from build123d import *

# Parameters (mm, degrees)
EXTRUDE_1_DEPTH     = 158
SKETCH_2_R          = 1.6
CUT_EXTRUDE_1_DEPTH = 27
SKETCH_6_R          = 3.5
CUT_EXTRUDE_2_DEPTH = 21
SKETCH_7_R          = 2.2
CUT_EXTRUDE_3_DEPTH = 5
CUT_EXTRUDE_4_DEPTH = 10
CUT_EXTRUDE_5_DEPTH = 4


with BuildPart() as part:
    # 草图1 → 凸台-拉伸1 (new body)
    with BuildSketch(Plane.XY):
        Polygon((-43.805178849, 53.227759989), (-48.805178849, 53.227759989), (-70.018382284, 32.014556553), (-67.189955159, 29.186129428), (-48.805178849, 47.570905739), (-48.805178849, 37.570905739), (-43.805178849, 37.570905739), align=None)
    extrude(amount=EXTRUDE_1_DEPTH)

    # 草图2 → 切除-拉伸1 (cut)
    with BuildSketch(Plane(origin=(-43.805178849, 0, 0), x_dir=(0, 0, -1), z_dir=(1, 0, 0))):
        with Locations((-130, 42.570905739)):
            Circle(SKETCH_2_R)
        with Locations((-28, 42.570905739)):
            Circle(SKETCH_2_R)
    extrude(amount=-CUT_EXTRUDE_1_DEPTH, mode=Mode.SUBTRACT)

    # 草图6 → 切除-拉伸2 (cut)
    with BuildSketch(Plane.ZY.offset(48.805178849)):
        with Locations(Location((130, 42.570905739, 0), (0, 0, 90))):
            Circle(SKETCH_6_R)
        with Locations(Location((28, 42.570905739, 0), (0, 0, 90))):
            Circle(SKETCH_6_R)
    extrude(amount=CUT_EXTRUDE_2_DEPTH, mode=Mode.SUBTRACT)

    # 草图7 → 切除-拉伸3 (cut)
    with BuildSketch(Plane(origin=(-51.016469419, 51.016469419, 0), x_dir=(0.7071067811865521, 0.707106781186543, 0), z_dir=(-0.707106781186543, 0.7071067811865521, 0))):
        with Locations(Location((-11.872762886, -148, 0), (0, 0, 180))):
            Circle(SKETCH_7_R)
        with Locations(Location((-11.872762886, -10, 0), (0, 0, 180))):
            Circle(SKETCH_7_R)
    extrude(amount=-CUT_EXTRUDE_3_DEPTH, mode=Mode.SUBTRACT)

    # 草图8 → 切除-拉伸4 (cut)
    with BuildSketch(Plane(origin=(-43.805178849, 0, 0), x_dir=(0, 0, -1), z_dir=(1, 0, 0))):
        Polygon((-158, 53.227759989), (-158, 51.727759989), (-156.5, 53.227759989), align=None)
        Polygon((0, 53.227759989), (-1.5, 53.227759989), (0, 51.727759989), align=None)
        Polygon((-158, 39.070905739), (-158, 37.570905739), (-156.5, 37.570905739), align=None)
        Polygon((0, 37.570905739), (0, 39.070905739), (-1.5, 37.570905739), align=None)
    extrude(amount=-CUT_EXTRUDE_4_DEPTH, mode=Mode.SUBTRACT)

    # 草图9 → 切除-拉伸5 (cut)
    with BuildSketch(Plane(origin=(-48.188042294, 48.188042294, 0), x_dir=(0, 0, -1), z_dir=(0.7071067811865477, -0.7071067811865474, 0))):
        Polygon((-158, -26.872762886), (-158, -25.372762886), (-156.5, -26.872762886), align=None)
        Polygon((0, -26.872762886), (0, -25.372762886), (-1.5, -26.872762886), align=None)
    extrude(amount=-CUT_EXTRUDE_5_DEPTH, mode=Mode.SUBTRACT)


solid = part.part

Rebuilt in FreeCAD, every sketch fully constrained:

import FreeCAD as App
import Part
import Sketcher

V = App.Vector
Q = App.Units.Quantity

doc = App.newDocument("Part")
body = doc.addObject("PartDesign::Body", "Body")

# Sketch on XY plane
sketch1 = body.newObject("Sketcher::SketchObject", "Sketch")
sketch1.AttachmentSupport = (doc.getObject("XY_Plane"), [""])
sketch1.MapMode = "FlatFace"
sketch1.addGeometry([
    Part.LineSegment(V(-43.8, 53.2, 0), V(-48.8, 53.2, 0)),  # 0
    Part.LineSegment(V(-48.8, 53.2, 0), V(-70, 32, 0)),  # 1
    Part.LineSegment(V(-70, 32, 0), V(-67.2, 29.2, 0)),  # 2
    Part.LineSegment(V(-67.2, 29.2, 0), V(-48.8, 47.6, 0)),  # 3
    Part.LineSegment(V(-48.8, 47.6, 0), V(-48.8, 37.6, 0)),  # 4
    Part.LineSegment(V(-48.8, 37.6, 0), V(-43.8, 37.6, 0)),  # 5
    Part.LineSegment(V(-43.8, 37.6, 0), V(-43.8, 53.2, 0)),  # 6
], False)
sketch1.addConstraint([
    Sketcher.Constraint("Coincident", 0, 2, 1, 1),
    Sketcher.Constraint("Coincident", 1, 2, 2, 1),
    Sketcher.Constraint("Coincident", 2, 2, 3, 1),
    Sketcher.Constraint("Coincident", 3, 2, 4, 1),
    Sketcher.Constraint("Coincident", 4, 2, 5, 1),
    Sketcher.Constraint("Coincident", 5, 2, 6, 1),
    Sketcher.Constraint("Coincident", 6, 2, 0, 1),
    Sketcher.Constraint("Horizontal", 0),
    Sketcher.Constraint("Vertical", 4),
    Sketcher.Constraint("Horizontal", 5),
    Sketcher.Constraint("Vertical", 6),
    Sketcher.Constraint("Perpendicular", 1, 2),
    Sketcher.Constraint("Perpendicular", 2, 3),
    Sketcher.Constraint("Vertical", 0, 2, 3, 2),
    Sketcher.Constraint("DistanceX", 0, 2, 0, 1, Q("5 mm")),
    Sketcher.Constraint("DistanceY", 4, 2, 4, 1, Q("10 mm")),
    Sketcher.Constraint("Angle", 1, Q("-135 deg")),
    Sketcher.Constraint("Distance", 1, Q("30 mm")),
    Sketcher.Constraint("Distance", 2, Q("4 mm")),
    Sketcher.Constraint("DistanceX", 0, 2, -1, 1, Q("48.805179 mm")),
    Sketcher.Constraint("DistanceY", -1, 1, 0, 2, Q("53.22776 mm")),
])
pad1 = body.newObject("PartDesign::Pad", "Pad")
pad1.Profile = sketch1
pad1.Length = 158

# Sketch on YZ plane
sketch2 = body.newObject("Sketcher::SketchObject", "Sketch001")
sketch2.AttachmentSupport = (doc.getObject("YZ_Plane"), [""])
sketch2.MapMode = "FlatFace"
sketch2.AttachmentOffset = App.Placement(V(0, 0, -43.805179), App.Rotation())
sketch2.addGeometry([
    Part.Circle(V(42.6, 130, 0), V(0, 0, 1), 1.6),
    Part.Circle(V(42.6, 28, 0), V(0, 0, 1), 1.6),
], False)
sketch2.addConstraint([
    Sketcher.Constraint("Equal", 0, 1),
    Sketcher.Constraint("Vertical", 0, 3, 1, 3),
    Sketcher.Constraint("Diameter", 0, Q("3.2 mm")),
    Sketcher.Constraint("DistanceY", -1, 1, 0, 3, Q("130 mm")),
    Sketcher.Constraint("DistanceY", -1, 1, 1, 3, Q("28 mm")),
    Sketcher.Constraint("DistanceX", -1, 1, 0, 3, Q("42.570906 mm")),
])
pocket1 = body.newObject("PartDesign::Pocket", "Pocket")
pocket1.Profile = sketch2
pocket1.Length = 27

# Sketch on YZ plane
sketch3 = body.newObject("Sketcher::SketchObject", "Sketch002")
sketch3.AttachmentSupport = (doc.getObject("YZ_Plane"), [""])
sketch3.MapMode = "FlatFace"
sketch3.AttachmentOffset = App.Placement(V(0, 0, -48.805179), App.Rotation())
sketch3.addGeometry([
    Part.Circle(V(42.6, 130, 0), V(0, 0, 1), 3.5),
    Part.Circle(V(42.6, 28, 0), V(0, 0, 1), 3.5),
], False)
sketch3.addConstraint([
    Sketcher.Constraint("Equal", 0, 1),
    Sketcher.Constraint("Vertical", 0, 3, 1, 3),
    Sketcher.Constraint("Diameter", 0, Q("7 mm")),
    Sketcher.Constraint("DistanceY", -1, 1, 0, 3, Q("130 mm")),
    Sketcher.Constraint("DistanceY", -1, 1, 1, 3, Q("28 mm")),
    Sketcher.Constraint("DistanceX", -1, 1, 0, 3, Q("42.570906 mm")),
])
pocket2 = body.newObject("PartDesign::Pocket", "Pocket001")
pocket2.Profile = sketch3
pocket2.Length = 21

# Sketch on an angled plane
sketch4 = body.newObject("Sketcher::SketchObject", "Sketch003")
sketch4.Placement = App.Placement(V(-51.016469, 51.016469, 0), App.Rotation(V(0.707106781, 0.707106781, 0), V(0, 0, -0.999999999), V(-0.707106781, 0.707106781, 0), "ZXY"))
sketch4.addGeometry([
    Part.Circle(V(-11.9, -148, 0), V(0, 0, 1), 2.2),
    Part.Circle(V(-11.9, -10, 0), V(0, 0, 1), 2.2),
], False)
sketch4.addConstraint([
    Sketcher.Constraint("Equal", 0, 1),
    Sketcher.Constraint("Vertical", 0, 3, 1, 3),
    Sketcher.Constraint("Diameter", 0, Q("4.4 mm")),
    Sketcher.Constraint("DistanceY", 0, 3, -1, 1, Q("148 mm")),
    Sketcher.Constraint("DistanceY", 1, 3, -1, 1, Q("10 mm")),
    Sketcher.Constraint("DistanceX", 0, 3, -1, 1, Q("11.872763 mm")),
])
pocket3 = body.newObject("PartDesign::Pocket", "Pocket002")
pocket3.Profile = sketch4
pocket3.Length = 5

# Sketch on YZ plane
sketch5 = body.newObject("Sketcher::SketchObject", "Sketch004")
sketch5.AttachmentSupport = (doc.getObject("YZ_Plane"), [""])
sketch5.MapMode = "FlatFace"
sketch5.AttachmentOffset = App.Placement(V(0, 0, -43.805179), App.Rotation())
sketch5.addGeometry([
    Part.LineSegment(V(53.2, 158, 0), V(51.7, 158, 0)),  # 0
    Part.LineSegment(V(51.7, 158, 0), V(53.2, 156.5, 0)),  # 1
    Part.LineSegment(V(53.2, 156.5, 0), V(53.2, 158, 0)),  # 2
    Part.LineSegment(V(53.2, 0, 0), V(53.2, 1.5, 0)),  # 3
    Part.LineSegment(V(53.2, 1.5, 0), V(51.7, 0, 0)),  # 4
    Part.LineSegment(V(51.7, 0, 0), V(53.2, 0, 0)),  # 5
    Part.LineSegment(V(39.1, 158, 0), V(37.6, 158, 0)),  # 6
    Part.LineSegment(V(37.6, 158, 0), V(37.6, 156.5, 0)),  # 7
    Part.LineSegment(V(37.6, 156.5, 0), V(39.1, 158, 0)),  # 8
    Part.LineSegment(V(37.6, 0, 0), V(39.1, 0, 0)),  # 9
    Part.LineSegment(V(39.1, 0, 0), V(37.6, 1.5, 0)),  # 10
    Part.LineSegment(V(37.6, 1.5, 0), V(37.6, 0, 0)),  # 11
], False)
sketch5.addConstraint([
    Sketcher.Constraint("Coincident", 0, 2, 1, 1),
    Sketcher.Constraint("Coincident", 1, 2, 2, 1),
    Sketcher.Constraint("Coincident", 2, 2, 0, 1),
    Sketcher.Constraint("Coincident", 3, 2, 4, 1),
    Sketcher.Constraint("Coincident", 4, 2, 5, 1),
    Sketcher.Constraint("Coincident", 5, 2, 3, 1),
    Sketcher.Constraint("Coincident", 6, 2, 7, 1),
    Sketcher.Constraint("Coincident", 7, 2, 8, 1),
    Sketcher.Constraint("Coincident", 8, 2, 6, 1),
    Sketcher.Constraint("Coincident", 9, 2, 10, 1),
    Sketcher.Constraint("Coincident", 10, 2, 11, 1),
    Sketcher.Constraint("Coincident", 11, 2, 9, 1),
    Sketcher.Constraint("Horizontal", 0),
    Sketcher.Constraint("Vertical", 2),
    Sketcher.Constraint("Vertical", 3),
    Sketcher.Constraint("Horizontal", 5),
    Sketcher.Constraint("Horizontal", 6),
    Sketcher.Constraint("Vertical", 7),
    Sketcher.Constraint("Horizontal", 9),
    Sketcher.Constraint("Vertical", 11),
    Sketcher.Constraint("PointOnObject", 4, 2, -1),
    Sketcher.Constraint("PointOnObject", 9, 2, -1),
    Sketcher.Constraint("Perpendicular", 1, 4),
    Sketcher.Constraint("Parallel", 4, 8),
    Sketcher.Constraint("Perpendicular", 8, 10),
    Sketcher.Constraint("Horizontal", 2, 2, 6, 2),
    Sketcher.Constraint("Horizontal", 1, 2, 7, 2),
    Sketcher.Constraint("Horizontal", 3, 2, 10, 2),
    Sketcher.Constraint("Vertical", 2, 2, 3, 2),
    Sketcher.Constraint("Vertical", 0, 2, 4, 2),
    Sketcher.Constraint("Vertical", 8, 2, 9, 2),
    Sketcher.Constraint("Vertical", 7, 2, 10, 2),
    Sketcher.Constraint("DistanceX", 0, 2, 0, 1, Q("1.5 mm")),
    Sketcher.Constraint("DistanceY", -1, 1, 0, 2, Q("158 mm")),
    Sketcher.Constraint("DistanceX", -1, 1, 0, 2, Q("51.72776 mm")),
    Sketcher.Constraint("DistanceX", -1, 1, 6, 2, Q("37.570906 mm")),
])
pocket4 = body.newObject("PartDesign::Pocket", "Pocket003")
pocket4.Profile = sketch5
pocket4.Length = 10

# Sketch on an angled plane
sketch6 = body.newObject("Sketcher::SketchObject", "Sketch005")
sketch6.Placement = App.Placement(V(-48.188042, 48.188042, 0), App.Rotation(V(0, 0, -1), V(0.707106781, 0.707106781, 0), V(0.707106781, -0.707106781, 0), "ZXY"))
sketch6.addGeometry([
    Part.LineSegment(V(-158, -25.4, 0), V(-158, -26.9, 0)),  # 0
    Part.LineSegment(V(-158, -26.9, 0), V(-156.5, -26.9, 0)),  # 1
    Part.LineSegment(V(-156.5, -26.9, 0), V(-158, -25.4, 0)),  # 2
    Part.LineSegment(V(0, -26.9, 0), V(0, -25.4, 0)),  # 3
    Part.LineSegment(V(0, -25.4, 0), V(-1.5, -26.9, 0)),  # 4
    Part.LineSegment(V(-1.5, -26.9, 0), V(0, -26.9, 0)),  # 5
], False)
sketch6.addConstraint([
    Sketcher.Constraint("Coincident", 0, 2, 1, 1),
    Sketcher.Constraint("Coincident", 1, 2, 2, 1),
    Sketcher.Constraint("Coincident", 2, 2, 0, 1),
    Sketcher.Constraint("Coincident", 3, 2, 4, 1),
    Sketcher.Constraint("Coincident", 4, 2, 5, 1),
    Sketcher.Constraint("Coincident", 5, 2, 3, 1),
    Sketcher.Constraint("Vertical", 0),
    Sketcher.Constraint("Horizontal", 1),
    Sketcher.Constraint("Vertical", 3),
    Sketcher.Constraint("Horizontal", 5),
    Sketcher.Constraint("PointOnObject", 3, 2, -2),
    Sketcher.Constraint("Perpendicular", 2, 4),
    Sketcher.Constraint("Horizontal", 2, 2, 3, 2),
    Sketcher.Constraint("Horizontal", 1, 2, 4, 2),
    Sketcher.Constraint("Equal", 1, 5),
    Sketcher.Constraint("DistanceX", 1, 1, 1, 2, Q("1.5 mm")),
    Sketcher.Constraint("DistanceX", 0, 2, -1, 1, Q("158 mm")),
    Sketcher.Constraint("DistanceY", 0, 2, -1, 1, Q("26.872763 mm")),
])
pocket5 = body.newObject("PartDesign::Pocket", "Pocket004")
pocket5.Profile = sketch6
pocket5.Length = 4

doc.recompute()
